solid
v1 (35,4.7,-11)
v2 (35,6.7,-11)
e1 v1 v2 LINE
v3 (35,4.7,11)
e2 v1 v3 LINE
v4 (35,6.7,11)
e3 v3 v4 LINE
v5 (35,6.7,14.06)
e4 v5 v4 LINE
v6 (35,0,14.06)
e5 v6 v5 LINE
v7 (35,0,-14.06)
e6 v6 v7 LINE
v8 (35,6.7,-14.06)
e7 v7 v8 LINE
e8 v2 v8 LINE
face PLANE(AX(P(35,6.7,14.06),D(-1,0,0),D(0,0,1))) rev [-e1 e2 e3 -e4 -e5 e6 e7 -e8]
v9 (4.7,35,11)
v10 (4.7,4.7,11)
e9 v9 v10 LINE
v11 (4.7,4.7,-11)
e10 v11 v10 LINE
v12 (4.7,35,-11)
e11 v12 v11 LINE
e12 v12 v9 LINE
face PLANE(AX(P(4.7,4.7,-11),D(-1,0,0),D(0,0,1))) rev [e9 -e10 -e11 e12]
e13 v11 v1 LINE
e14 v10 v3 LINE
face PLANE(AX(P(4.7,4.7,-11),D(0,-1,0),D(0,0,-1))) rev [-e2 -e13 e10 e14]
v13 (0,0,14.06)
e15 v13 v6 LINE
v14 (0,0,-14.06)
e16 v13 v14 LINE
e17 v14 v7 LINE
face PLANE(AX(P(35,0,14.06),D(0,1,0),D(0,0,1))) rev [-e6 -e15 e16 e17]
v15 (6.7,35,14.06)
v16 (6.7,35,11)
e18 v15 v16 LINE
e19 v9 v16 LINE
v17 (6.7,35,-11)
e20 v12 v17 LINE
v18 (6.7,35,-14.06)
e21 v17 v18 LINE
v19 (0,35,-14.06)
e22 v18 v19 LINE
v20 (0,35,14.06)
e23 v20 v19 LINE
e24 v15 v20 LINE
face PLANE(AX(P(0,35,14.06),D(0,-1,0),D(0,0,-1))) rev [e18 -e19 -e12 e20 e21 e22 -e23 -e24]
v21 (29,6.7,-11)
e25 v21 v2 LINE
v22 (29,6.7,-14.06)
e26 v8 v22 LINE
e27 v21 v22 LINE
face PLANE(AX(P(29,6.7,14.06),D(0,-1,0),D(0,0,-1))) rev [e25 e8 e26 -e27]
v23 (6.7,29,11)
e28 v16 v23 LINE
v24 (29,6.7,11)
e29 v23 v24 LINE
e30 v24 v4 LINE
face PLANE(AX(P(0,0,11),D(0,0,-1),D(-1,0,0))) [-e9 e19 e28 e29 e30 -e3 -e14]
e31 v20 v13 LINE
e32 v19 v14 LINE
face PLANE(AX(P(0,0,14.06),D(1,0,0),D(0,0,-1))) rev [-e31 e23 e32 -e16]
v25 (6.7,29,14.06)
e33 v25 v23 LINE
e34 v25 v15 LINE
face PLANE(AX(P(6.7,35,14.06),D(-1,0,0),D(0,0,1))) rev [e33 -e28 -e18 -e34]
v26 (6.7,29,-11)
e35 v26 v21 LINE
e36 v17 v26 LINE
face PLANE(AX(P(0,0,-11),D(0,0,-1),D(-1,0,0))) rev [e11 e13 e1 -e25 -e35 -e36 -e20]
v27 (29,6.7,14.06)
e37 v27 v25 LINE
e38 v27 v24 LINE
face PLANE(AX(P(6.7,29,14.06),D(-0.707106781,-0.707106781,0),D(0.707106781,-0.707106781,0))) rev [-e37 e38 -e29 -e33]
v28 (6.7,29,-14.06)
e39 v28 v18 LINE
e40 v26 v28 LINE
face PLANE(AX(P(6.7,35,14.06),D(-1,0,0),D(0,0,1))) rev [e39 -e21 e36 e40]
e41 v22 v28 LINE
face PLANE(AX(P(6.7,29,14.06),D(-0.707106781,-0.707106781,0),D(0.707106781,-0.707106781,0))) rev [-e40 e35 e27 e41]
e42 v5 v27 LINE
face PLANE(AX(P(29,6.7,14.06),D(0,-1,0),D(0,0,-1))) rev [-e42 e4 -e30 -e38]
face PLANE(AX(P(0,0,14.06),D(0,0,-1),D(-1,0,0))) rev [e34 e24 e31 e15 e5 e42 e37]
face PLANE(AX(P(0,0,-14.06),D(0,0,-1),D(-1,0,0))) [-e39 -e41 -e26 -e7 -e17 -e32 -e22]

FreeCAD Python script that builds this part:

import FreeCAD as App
import Part
import Sketcher
Q = App.Units.Quantity

doc = App.newDocument("Part")
body = doc.addObject("PartDesign::Body", "Body")

# Sketch on XY plane
sketch1 = body.newObject("Sketcher::SketchObject", "Sketch")
sketch1.AttachmentSupport = (doc.getObject("XY_Plane"), [""])
sketch1.MapMode = "FlatFace"
sketch1.addGeometry(Part.LineSegment(App.Vector(0, 35, 0), App.Vector(0, 0, 0)), False)
sketch1.addGeometry(Part.LineSegment(App.Vector(0, 0, 0), App.Vector(35, 0, 0)), False)
sketch1.addGeometry(Part.LineSegment(App.Vector(35, 0, 0), App.Vector(35, 7, 0)), False)
sketch1.addGeometry(Part.LineSegment(App.Vector(35, 7, 0), App.Vector(29, 7, 0)), False)
sketch1.addGeometry(Part.LineSegment(App.Vector(29, 7, 0), App.Vector(7, 29, 0)), False)
sketch1.addGeometry(Part.LineSegment(App.Vector(7, 29, 0), App.Vector(7, 35, 0)), False)
sketch1.addGeometry(Part.LineSegment(App.Vector(7, 35, 0), App.Vector(0, 35, 0)), False)
sketch1.addConstraint(Sketcher.Constraint("Coincident", 0, 2, 1, 1))
sketch1.addConstraint(Sketcher.Constraint("Coincident", 1, 2, 2, 1))
sketch1.addConstraint(Sketcher.Constraint("Coincident", 2, 2, 3, 1))
sketch1.addConstraint(Sketcher.Constraint("Coincident", 3, 2, 4, 1))
sketch1.addConstraint(Sketcher.Constraint("Coincident", 4, 2, 5, 1))
sketch1.addConstraint(Sketcher.Constraint("Coincident", 5, 2, 6, 1))
sketch1.addConstraint(Sketcher.Constraint("Coincident", 6, 2, 0, 1))
sketch1.addConstraint(Sketcher.Constraint("Vertical", 0))
sketch1.addConstraint(Sketcher.Constraint("Horizontal", 1))
sketch1.addConstraint(Sketcher.Constraint("Vertical", 2))
sketch1.addConstraint(Sketcher.Constraint("Horizontal", 3))
sketch1.addConstraint(Sketcher.Constraint("Vertical", 5))
sketch1.addConstraint(Sketcher.Constraint("Horizontal", 6))
sketch1.addConstraint(Sketcher.Constraint("Coincident", 0, 2, -1, 1))
sketch1.addConstraint(Sketcher.Constraint("Equal", 1, 0))
sketch1.addConstraint(Sketcher.Constraint("Equal", 6, 2))
sketch1.addConstraint(Sketcher.Constraint("Equal", 3, 5))
sketch1.addConstraint(Sketcher.Constraint("DistanceX", 1, 1, 1, 2, Q("35 mm")))
sketch1.addConstraint(Sketcher.Constraint("DistanceX", 3, 2, 3, 1, Q("6 mm")))
sketch1.addConstraint(Sketcher.Constraint("DistanceX", 6, 2, 6, 1, Q("6.7 mm")))
pad1 = body.newObject("PartDesign::Pad", "Pad")
pad1.Profile = sketch1
pad1.Length = 28.12
pad1.Midplane = True

# Sketch on XY plane
sketch2 = body.newObject("Sketcher::SketchObject", "Sketch001")
sketch2.AttachmentSupport = (doc.getObject("XY_Plane"), [""])
sketch2.MapMode = "FlatFace"
sketch2.addGeometry(Part.LineSegment(App.Vector(5, 35, 0), App.Vector(5, 5, 0)), False)
sketch2.addGeometry(Part.LineSegment(App.Vector(5, 5, 0), App.Vector(35, 5, 0)), False)
sketch2.addGeometry(Part.LineSegment(App.Vector(35, 5, 0), App.Vector(35, 35, 0)), False)
sketch2.addGeometry(Part.LineSegment(App.Vector(35, 35, 0), App.Vector(5, 35, 0)), False)
sketch2.addConstraint(Sketcher.Constraint("Coincident", 0, 2, 1, 1))
sketch2.addConstraint(Sketcher.Constraint("Coincident", 1, 2, 2, 1))
sketch2.addConstraint(Sketcher.Constraint("Coincident", 2, 2, 3, 1))
sketch2.addConstraint(Sketcher.Constraint("Coincident", 3, 2, 0, 1))
sketch2.addConstraint(Sketcher.Constraint("Vertical", 0))
sketch2.addConstraint(Sketcher.Constraint("Horizontal", 1))
sketch2.addConstraint(Sketcher.Constraint("Vertical", 2))
sketch2.addConstraint(Sketcher.Constraint("Horizontal", 3))
sketch2.addConstraint(Sketcher.Constraint("Equal", 3, 0))
sketch2.addConstraint(Sketcher.Constraint("DistanceX", 1, 1, 1, 2, Q("30.3 mm")))
sketch2.addConstraint(Sketcher.Constraint("DistanceX", -1, 1, 1, 2, Q("35 mm")))
sketch2.addConstraint(Sketcher.Constraint("DistanceY", -1, 1, 2, 2, Q("35 mm")))
pocket1 = body.newObject("PartDesign::Pocket", "Pocket")
pocket1.Profile = sketch2
pocket1.Length = 22
pocket1.Midplane = True

doc.recompute()
